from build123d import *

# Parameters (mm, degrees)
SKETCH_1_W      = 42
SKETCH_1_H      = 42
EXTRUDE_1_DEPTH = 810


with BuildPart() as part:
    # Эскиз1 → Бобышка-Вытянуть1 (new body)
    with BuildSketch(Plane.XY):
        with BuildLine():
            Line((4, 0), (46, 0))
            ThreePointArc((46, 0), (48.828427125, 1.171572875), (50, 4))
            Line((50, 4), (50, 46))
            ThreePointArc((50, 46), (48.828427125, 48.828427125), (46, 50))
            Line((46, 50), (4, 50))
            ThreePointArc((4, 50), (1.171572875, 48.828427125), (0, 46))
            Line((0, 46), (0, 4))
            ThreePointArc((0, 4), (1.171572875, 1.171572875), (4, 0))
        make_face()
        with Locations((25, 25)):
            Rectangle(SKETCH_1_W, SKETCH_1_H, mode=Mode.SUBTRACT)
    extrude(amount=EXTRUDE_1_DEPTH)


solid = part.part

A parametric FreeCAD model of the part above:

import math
import FreeCAD as App
import Part
import Sketcher

doc = App.newDocument("Part")
body = doc.addObject("PartDesign::Body", "Body")

# Sketch on XY plane
sketch1 = doc.addObject("Sketcher::SketchObject", "Sketch")
body.addObject(sketch1)
sketch1.AttachmentSupport = (doc.XY_Plane, [""])
sketch1.MapMode = "FlatFace"
sketch1.addGeometry([
    Part.LineSegment(App.Vector(4, 0, 0), App.Vector(46, 0, 0)),  # 0
    Part.ArcOfCircle(Part.Circle(App.Vector(46, 4, 0), App.Vector(0, 0, 1), 4), math.radians(-90), math.radians(0)),  # 1
    Part.LineSegment(App.Vector(50, 4, 0), App.Vector(50, 46, 0)),  # 2
    Part.ArcOfCircle(Part.Circle(App.Vector(46, 46, 0), App.Vector(0, 0, 1), 4), math.radians(0), math.radians(90)),  # 3
    Part.LineSegment(App.Vector(46, 50, 0), App.Vector(4, 50, 0)),  # 4
    Part.ArcOfCircle(Part.Circle(App.Vector(4, 46, 0), App.Vector(0, 0, 1), 4), math.radians(90), math.radians(180)),  # 5
    Part.LineSegment(App.Vector(0, 46, 0), App.Vector(0, 4, 0)),  # 6
    Part.ArcOfCircle(Part.Circle(App.Vector(4, 4, 0), App.Vector(0, 0, 1), 4), math.radians(180), math.radians(270)),  # 7
    Part.LineSegment(App.Vector(46, 4, 0), App.Vector(4, 4, 0)),  # 8
    Part.LineSegment(App.Vector(4, 4, 0), App.Vector(4, 46, 0)),  # 9
    Part.LineSegment(App.Vector(4, 46, 0), App.Vector(46, 46, 0)),  # 10
    Part.LineSegment(App.Vector(46, 46, 0), App.Vector(46, 4, 0)),  # 11
], False)
sketch1.addConstraint([
    Sketcher.Constraint("Tangent", 0, 2, 1, 1),
    Sketcher.Constraint("Tangent", 1, 2, 2, 1),
    Sketcher.Constraint("Tangent", 2, 2, 3, 1),
    Sketcher.Constraint("Tangent", 3, 2, 4, 1),
    Sketcher.Constraint("Tangent", 4, 2, 5, 1),
    Sketcher.Constraint("Tangent", 5, 2, 6, 1),
    Sketcher.Constraint("Tangent", 6, 2, 7, 1),
    Sketcher.Constraint("Tangent", 7, 2, 0, 1),
    Sketcher.Constraint("Coincident", 8, 2, 9, 1),
    Sketcher.Constraint("Coincident", 9, 2, 10, 1),
    Sketcher.Constraint("Coincident", 10, 2, 11, 1),
    Sketcher.Constraint("Coincident", 11, 2, 8, 1),
    Sketcher.Constraint("Horizontal", 0),
    Sketcher.Constraint("Vertical", 2),
    Sketcher.Constraint("Horizontal", 4),
    Sketcher.Constraint("Vertical", 6),
    Sketcher.Constraint("Horizontal", 8),
    Sketcher.Constraint("Vertical", 9),
    Sketcher.Constraint("Horizontal", 10),
    Sketcher.Constraint("Vertical", 11),
    Sketcher.Constraint("Coincident", 8, 2, 7, 3),
    Sketcher.Constraint("Coincident", 9, 2, 5, 3),
    Sketcher.Constraint("Coincident", 10, 2, 3, 3),
    Sketcher.Constraint("Equal", 1, 3),
    Sketcher.Constraint("PointOnObject", 0, 2, -1),
    Sketcher.Constraint("PointOnObject", 5, 2, -2),
    Sketcher.Constraint("Equal", 10, 2),
    Sketcher.Constraint("Radius", 1, 4.0),
    Sketcher.Constraint("DistanceX", 0, 1, 0, 2, 42.0),
])
pad1 = doc.addObject("PartDesign::Pad", "Pad")
body.addObject(pad1)
pad1.Profile = sketch1
pad1.Length = 810

doc.recompute()
